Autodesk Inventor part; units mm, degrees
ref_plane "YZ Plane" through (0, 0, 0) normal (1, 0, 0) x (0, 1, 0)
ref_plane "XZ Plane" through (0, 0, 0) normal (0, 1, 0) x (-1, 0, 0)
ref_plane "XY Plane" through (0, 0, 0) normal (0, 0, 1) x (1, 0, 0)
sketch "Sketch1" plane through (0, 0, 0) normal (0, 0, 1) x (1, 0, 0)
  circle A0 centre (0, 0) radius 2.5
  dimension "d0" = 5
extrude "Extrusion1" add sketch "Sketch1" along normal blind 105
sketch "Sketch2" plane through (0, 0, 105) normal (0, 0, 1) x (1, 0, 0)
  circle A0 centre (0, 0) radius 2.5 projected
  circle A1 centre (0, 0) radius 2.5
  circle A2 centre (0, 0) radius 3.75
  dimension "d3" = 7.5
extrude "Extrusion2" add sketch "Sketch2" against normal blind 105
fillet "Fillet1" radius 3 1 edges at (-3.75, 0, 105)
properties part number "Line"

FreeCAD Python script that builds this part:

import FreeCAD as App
import Part
import Sketcher
from FreeCAD import Vector
Q = App.Units.Quantity


def edges_at(feature, points):
    """Names of the edges that pass closest to the given points."""
    edges = feature.Shape.Edges
    near = lambda p: min(range(len(edges)), key=lambda i: edges[i].distToShape(Part.Vertex(*p))[0])
    return sorted({f"Edge{near(p) + 1}" for p in points})

doc = App.newDocument("Part")
body = doc.addObject("PartDesign::Body", "Body")

sketch1 = body.newObject("Sketcher::SketchObject", "Sketch")
sketch1.AttachmentSupport = (doc.getObject("XY_Plane"), [""])
sketch1.MapMode = "FlatFace"
sketch1.addGeometry(Part.Circle(Vector(0, 0, 0), Vector(0, 0, 1), 2.5), False)
sketch1.addConstraint([
    Sketcher.Constraint("Coincident", 0, 3, -1, 1),
    Sketcher.Constraint("Diameter", 0, Q("5 mm")),
])
pad1 = body.newObject("PartDesign::Pad", "Pad")
pad1.Profile = sketch1
pad1.Length = 105

sketch2 = body.newObject("Sketcher::SketchObject", "Sketch001")
sketch2.AttachmentSupport = (doc.getObject("XY_Plane"), [""])
sketch2.MapMode = "FlatFace"
sketch2.AttachmentOffset = App.Placement(Vector(0, 0, 105), App.Rotation())
sketch2.addGeometry([
    Part.Circle(Vector(0, 0, 0), Vector(0, 0, 1), 3.8),
    Part.Circle(Vector(0, 0, 0), Vector(0, 0, 1), 2.5),
], False)
sketch2.addConstraint([
    Sketcher.Constraint("Coincident", 0, 3, -1, 1),
    Sketcher.Constraint("Coincident", 1, 3, -1, 1),
    Sketcher.Constraint("Diameter", 0, Q("7.5 mm")),
    Sketcher.Constraint("Diameter", 1, Q("5 mm")),
])
pad2 = body.newObject("PartDesign::Pad", "Pad001")
pad2.Profile = sketch2
pad2.Length = 105
pad2.Reversed = True
doc.recompute()

fillet = body.newObject("PartDesign::Fillet", "Fillet")
fillet.Base = (pad2, edges_at(pad2, [(-3.75, 0, 105)]))
fillet.Radius = 3

doc.recompute()
